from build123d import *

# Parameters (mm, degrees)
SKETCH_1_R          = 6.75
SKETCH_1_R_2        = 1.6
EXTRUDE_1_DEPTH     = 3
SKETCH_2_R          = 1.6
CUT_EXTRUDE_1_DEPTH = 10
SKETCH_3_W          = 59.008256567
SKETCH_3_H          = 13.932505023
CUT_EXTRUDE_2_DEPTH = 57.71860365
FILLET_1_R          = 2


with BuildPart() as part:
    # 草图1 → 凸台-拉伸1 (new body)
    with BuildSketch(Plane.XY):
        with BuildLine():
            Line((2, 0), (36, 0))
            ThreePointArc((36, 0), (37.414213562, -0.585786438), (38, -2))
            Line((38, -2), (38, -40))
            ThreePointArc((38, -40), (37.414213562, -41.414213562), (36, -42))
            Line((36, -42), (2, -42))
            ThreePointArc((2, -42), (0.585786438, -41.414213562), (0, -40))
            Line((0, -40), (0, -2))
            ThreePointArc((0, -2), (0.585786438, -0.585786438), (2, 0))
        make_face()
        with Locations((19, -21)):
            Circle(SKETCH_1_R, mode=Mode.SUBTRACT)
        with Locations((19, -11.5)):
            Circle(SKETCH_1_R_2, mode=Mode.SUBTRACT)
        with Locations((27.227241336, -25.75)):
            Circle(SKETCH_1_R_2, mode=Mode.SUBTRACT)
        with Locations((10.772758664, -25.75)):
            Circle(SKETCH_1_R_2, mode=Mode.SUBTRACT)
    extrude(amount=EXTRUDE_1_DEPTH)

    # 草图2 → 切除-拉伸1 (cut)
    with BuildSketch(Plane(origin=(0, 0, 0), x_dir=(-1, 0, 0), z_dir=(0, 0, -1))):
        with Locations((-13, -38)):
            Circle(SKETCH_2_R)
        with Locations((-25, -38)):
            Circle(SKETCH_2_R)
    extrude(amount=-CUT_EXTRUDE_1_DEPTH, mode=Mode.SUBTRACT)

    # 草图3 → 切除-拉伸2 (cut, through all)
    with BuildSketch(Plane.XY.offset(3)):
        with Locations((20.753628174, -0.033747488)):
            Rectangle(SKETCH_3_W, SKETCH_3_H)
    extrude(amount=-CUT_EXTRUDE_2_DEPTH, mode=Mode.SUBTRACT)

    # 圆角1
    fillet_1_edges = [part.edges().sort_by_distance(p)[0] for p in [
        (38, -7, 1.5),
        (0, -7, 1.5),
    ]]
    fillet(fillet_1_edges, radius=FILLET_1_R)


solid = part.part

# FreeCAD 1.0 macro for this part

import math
import FreeCAD as App
import Part
import Sketcher


def edges_at(feature, points):
    """Names of the edges that pass closest to the given points."""
    edges = feature.Shape.Edges
    near = lambda p: min(range(len(edges)), key=lambda i: edges[i].distToShape(Part.Vertex(*p))[0])
    return sorted({f"Edge{near(p) + 1}" for p in points})


def add_polygon(sketch, points):
    """Adds a closed chain of lines whose ends are joined by coincident constraints."""
    first, n = sketch.GeometryCount, len(points)
    for a, b in zip(points, points[1:] + points[:1]):
        sketch.addGeometry(Part.LineSegment(App.Vector(*a, 0), App.Vector(*b, 0)), False)
    for i in range(n):
        sketch.addConstraint(Sketcher.Constraint("Coincident", first + i, 2, first + (i + 1) % n, 1))

doc = App.newDocument("Part")
body = doc.addObject("PartDesign::Body", "Body")

sketch1 = body.newObject("Sketcher::SketchObject", "Sketch")
sketch1.AttachmentSupport = (doc.getObject("XY_Plane"), [""])
sketch1.MapMode = "FlatFace"
sketch1.addGeometry(Part.LineSegment(App.Vector(36, 0, 0), App.Vector(2, 0, 0)), False)
sketch1.addGeometry(Part.ArcOfCircle(Part.Circle(App.Vector(2, -2, 0), App.Vector(0, 0, 1), 2), math.radians(90), math.radians(180)), False)
sketch1.addGeometry(Part.LineSegment(App.Vector(0, -2, 0), App.Vector(0, -40, 0)), False)
sketch1.addGeometry(Part.ArcOfCircle(Part.Circle(App.Vector(2, -40, 0), App.Vector(0, 0, 1), 2), math.radians(-180), math.radians(-90)), False)
sketch1.addGeometry(Part.LineSegment(App.Vector(2, -42, 0), App.Vector(36, -42, 0)), False)
sketch1.addGeometry(Part.ArcOfCircle(Part.Circle(App.Vector(36, -40, 0), App.Vector(0, 0, 1), 2), math.radians(-90), math.radians(0)), False)
sketch1.addGeometry(Part.LineSegment(App.Vector(38, -40, 0), App.Vector(38, -2, 0)), False)
sketch1.addGeometry(Part.ArcOfCircle(Part.Circle(App.Vector(36, -2, 0), App.Vector(0, 0, 1), 2), math.radians(0), math.radians(90)), False)
sketch1.addGeometry(Part.Circle(App.Vector(27.2, -25.8, 0), App.Vector(0, 0, 1), 1.6), False)
sketch1.addGeometry(Part.Circle(App.Vector(10.8, -25.8, 0), App.Vector(0, 0, 1), 1.6), False)
sketch1.addGeometry(Part.Circle(App.Vector(19, -21, 0), App.Vector(0, 0, 1), 6.8), False)
sketch1.addGeometry(Part.Circle(App.Vector(19, -11.5, 0), App.Vector(0, 0, 1), 1.6), False)
sketch1.addConstraint(Sketcher.Constraint("Tangent", 0, 2, 1, 1))
sketch1.addConstraint(Sketcher.Constraint("Tangent", 1, 2, 2, 1))
sketch1.addConstraint(Sketcher.Constraint("Tangent", 2, 2, 3, 1))
sketch1.addConstraint(Sketcher.Constraint("Tangent", 3, 2, 4, 1))
sketch1.addConstraint(Sketcher.Constraint("Tangent", 4, 2, 5, 1))
sketch1.addConstraint(Sketcher.Constraint("Tangent", 5, 2, 6, 1))
sketch1.addConstraint(Sketcher.Constraint("Tangent", 6, 2, 7, 1))
sketch1.addConstraint(Sketcher.Constraint("Tangent", 7, 2, 0, 1))
sketch1.addConstraint(Sketcher.Constraint("Horizontal", 0))
sketch1.addConstraint(Sketcher.Constraint("Vertical", 2))
sketch1.addConstraint(Sketcher.Constraint("Horizontal", 4))
sketch1.addConstraint(Sketcher.Constraint("Vertical", 6))
sketch1.addConstraint(Sketcher.Constraint("Equal", 1, 3))
sketch1.addConstraint(Sketcher.Constraint("Equal", 3, 5))
sketch1.addConstraint(Sketcher.Constraint("Equal", 5, 7))
sketch1.addConstraint(Sketcher.Constraint("Equal", 8, 9))
sketch1.addConstraint(Sketcher.Constraint("Equal", 9, 11))
sketch1.addConstraint(Sketcher.Constraint("PointOnObject", 0, 2, -1))
sketch1.addConstraint(Sketcher.Constraint("PointOnObject", 1, 2, -2))
sketch1.addConstraint(Sketcher.Constraint("Horizontal", 8, 3, 9, 3))
sketch1.addConstraint(Sketcher.Constraint("Vertical", 10, 3, 11, 3))
sketch1.addConstraint(Sketcher.Constraint("Radius", 1, 2.0))
sketch1.addConstraint(Sketcher.Constraint("Diameter", 8, 3.2))
sketch1.addConstraint(Sketcher.Constraint("Diameter", 10, 13.5))
sketch1.addConstraint(Sketcher.Constraint("DistanceX", 0, 2, 0, 1, 34.0))
sketch1.addConstraint(Sketcher.Constraint("DistanceY", 2, 2, 2, 1, 38.0))
sketch1.addConstraint(Sketcher.Constraint("DistanceX", -1, 1, 10, 3, 19.0))
sketch1.addConstraint(Sketcher.Constraint("DistanceY", 10, 3, -1, 1, 21.0))
sketch1.addConstraint(Sketcher.Constraint("DistanceY", 11, 3, -1, 1, 11.5))
sketch1.addConstraint(Sketcher.Constraint("DistanceY", 8, 3, -1, 1, 25.75))
sketch1.addConstraint(Sketcher.Constraint("DistanceX", -1, 1, 8, 3, 27.227241))
sketch1.addConstraint(Sketcher.Constraint("DistanceX", -1, 1, 9, 3, 10.772759))
pad1 = body.newObject("PartDesign::Pad", "Pad")
pad1.Profile = sketch1
pad1.Length = 3

sketch2 = body.newObject("Sketcher::SketchObject", "Sketch001")
sketch2.AttachmentSupport = (doc.getObject("XY_Plane"), [""])
sketch2.MapMode = "FlatFace"
sketch2.addGeometry(Part.Circle(App.Vector(13, -38, 0), App.Vector(0, 0, 1), 1.6), False)
sketch2.addGeometry(Part.Circle(App.Vector(25, -38, 0), App.Vector(0, 0, 1), 1.6), False)
sketch2.addConstraint(Sketcher.Constraint("Equal", 0, 1))
sketch2.addConstraint(Sketcher.Constraint("Horizontal", 0, 3, 1, 3))
sketch2.addConstraint(Sketcher.Constraint("Diameter", 0, 3.2))
sketch2.addConstraint(Sketcher.Constraint("DistanceX", -1, 1, 0, 3, 13.0))
sketch2.addConstraint(Sketcher.Constraint("DistanceY", 0, 3, -1, 1, 38.0))
sketch2.addConstraint(Sketcher.Constraint("DistanceX", -1, 1, 1, 3, 25.0))
pocket1 = body.newObject("PartDesign::Pocket", "Pocket")
pocket1.Profile = sketch2
pocket1.Length = 10
pocket1.Reversed = True

sketch3 = body.newObject("Sketcher::SketchObject", "Sketch002")
sketch3.AttachmentSupport = (doc.getObject("XY_Plane"), [""])
sketch3.MapMode = "FlatFace"
sketch3.AttachmentOffset = App.Placement(App.Vector(0, 0, 3), App.Rotation())
add_polygon(sketch3, [(-9, 7), (-9, -7), (50, -7), (50, 7)])
sketch3.addConstraint(Sketcher.Constraint("Vertical", 0))
sketch3.addConstraint(Sketcher.Constraint("Horizontal", 1))
sketch3.addConstraint(Sketcher.Constraint("Vertical", 2))
sketch3.addConstraint(Sketcher.Constraint("Horizontal", 3))
sketch3.addConstraint(Sketcher.Constraint("DistanceY", 0, 2, -1, 1, 7.0))
sketch3.addConstraint(Sketcher.Constraint("DistanceX", 0, 2, -1, 1, 8.7505))
sketch3.addConstraint(Sketcher.Constraint("DistanceX", 1, 1, 1, 2, 59.008257))
sketch3.addConstraint(Sketcher.Constraint("DistanceY", 0, 2, 0, 1, 13.932505))
pocket2 = body.newObject("PartDesign::Pocket", "Pocket001")
pocket2.Profile = sketch3
pocket2.Type = "ThroughAll"
doc.recompute()

fillet = body.newObject("PartDesign::Fillet", "Fillet")
fillet.Base = (pocket2, edges_at(pocket2, [(38, -7, 1.5), (0, -7, 1.5)]))
fillet.Radius = 2

doc.recompute()
